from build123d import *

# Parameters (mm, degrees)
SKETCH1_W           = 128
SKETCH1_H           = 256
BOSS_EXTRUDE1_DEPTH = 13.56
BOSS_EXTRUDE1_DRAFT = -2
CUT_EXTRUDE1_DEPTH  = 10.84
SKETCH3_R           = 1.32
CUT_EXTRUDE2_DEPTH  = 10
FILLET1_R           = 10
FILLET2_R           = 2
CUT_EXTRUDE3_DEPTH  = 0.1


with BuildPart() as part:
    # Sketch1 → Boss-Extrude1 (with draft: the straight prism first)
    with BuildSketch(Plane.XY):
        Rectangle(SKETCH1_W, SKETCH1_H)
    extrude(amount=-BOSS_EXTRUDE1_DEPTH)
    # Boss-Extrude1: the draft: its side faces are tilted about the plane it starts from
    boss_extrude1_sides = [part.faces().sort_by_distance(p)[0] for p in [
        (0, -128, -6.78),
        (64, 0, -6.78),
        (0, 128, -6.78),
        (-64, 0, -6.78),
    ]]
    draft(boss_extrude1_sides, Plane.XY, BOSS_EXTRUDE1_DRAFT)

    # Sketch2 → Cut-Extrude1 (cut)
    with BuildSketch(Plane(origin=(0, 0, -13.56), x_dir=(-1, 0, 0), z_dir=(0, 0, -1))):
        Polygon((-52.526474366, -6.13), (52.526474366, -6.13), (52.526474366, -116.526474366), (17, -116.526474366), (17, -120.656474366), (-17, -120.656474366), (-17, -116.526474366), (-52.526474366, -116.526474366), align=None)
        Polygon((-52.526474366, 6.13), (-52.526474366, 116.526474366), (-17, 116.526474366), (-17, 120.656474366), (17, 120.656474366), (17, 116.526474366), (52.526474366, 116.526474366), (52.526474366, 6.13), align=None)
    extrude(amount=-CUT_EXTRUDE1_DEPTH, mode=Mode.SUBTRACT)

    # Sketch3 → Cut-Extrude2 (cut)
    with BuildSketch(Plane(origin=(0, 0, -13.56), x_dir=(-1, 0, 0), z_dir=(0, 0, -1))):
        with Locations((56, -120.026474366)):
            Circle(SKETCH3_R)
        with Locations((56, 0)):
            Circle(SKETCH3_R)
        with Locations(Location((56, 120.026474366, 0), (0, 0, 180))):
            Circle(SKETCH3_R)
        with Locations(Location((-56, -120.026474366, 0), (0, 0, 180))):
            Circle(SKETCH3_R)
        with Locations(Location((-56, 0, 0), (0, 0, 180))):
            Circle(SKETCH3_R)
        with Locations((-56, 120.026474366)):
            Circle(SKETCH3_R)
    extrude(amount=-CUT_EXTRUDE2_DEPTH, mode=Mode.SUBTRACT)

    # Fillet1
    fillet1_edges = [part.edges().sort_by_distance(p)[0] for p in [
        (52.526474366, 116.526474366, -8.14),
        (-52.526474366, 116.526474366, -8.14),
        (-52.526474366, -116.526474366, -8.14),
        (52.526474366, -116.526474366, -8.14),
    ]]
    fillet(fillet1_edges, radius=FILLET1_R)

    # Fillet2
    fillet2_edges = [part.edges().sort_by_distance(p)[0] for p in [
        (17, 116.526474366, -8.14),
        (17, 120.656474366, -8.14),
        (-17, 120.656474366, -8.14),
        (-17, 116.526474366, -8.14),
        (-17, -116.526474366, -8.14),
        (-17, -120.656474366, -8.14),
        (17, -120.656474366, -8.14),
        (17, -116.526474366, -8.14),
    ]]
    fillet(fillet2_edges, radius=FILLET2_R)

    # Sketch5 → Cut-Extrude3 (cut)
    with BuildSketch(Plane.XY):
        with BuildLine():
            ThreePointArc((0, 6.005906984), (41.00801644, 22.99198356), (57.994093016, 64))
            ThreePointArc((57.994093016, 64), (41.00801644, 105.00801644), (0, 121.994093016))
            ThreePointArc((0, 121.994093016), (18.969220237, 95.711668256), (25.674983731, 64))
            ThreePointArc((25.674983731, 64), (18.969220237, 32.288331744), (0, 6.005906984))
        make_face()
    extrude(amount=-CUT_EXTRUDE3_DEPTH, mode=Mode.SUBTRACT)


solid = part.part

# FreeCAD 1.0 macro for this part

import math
import FreeCAD as App
import Part
import Sketcher
from FreeCAD import Vector
Q = App.Units.Quantity


def edges_at(feature, points):
    """Names of the edges that pass closest to the given points."""
    edges = feature.Shape.Edges
    near = lambda p: min(range(len(edges)), key=lambda i: edges[i].distToShape(Part.Vertex(*p))[0])
    return sorted({f"Edge{near(p) + 1}" for p in points})


def faces_at(feature, points):
    """Names of the faces that lie closest to the given points."""
    faces = feature.Shape.Faces
    near = lambda p: min(range(len(faces)), key=lambda i: faces[i].distToShape(Part.Vertex(*p))[0])
    return sorted({f"Face{near(p) + 1}" for p in points})


def add_polygon(sketch, points):
    """Adds a closed chain of lines whose ends are joined by coincident constraints."""
    first, n = sketch.GeometryCount, len(points)
    for a, b in zip(points, points[1:] + points[:1]):
        sketch.addGeometry(Part.LineSegment(App.Vector(*a, 0), App.Vector(*b, 0)), False)
    for i in range(n):
        sketch.addConstraint(Sketcher.Constraint("Coincident", first + i, 2, first + (i + 1) % n, 1))

doc = App.newDocument("Part")
params = doc.addObject("Spreadsheet::Sheet", "Params")
for row, (alias, value) in enumerate([
    ("sketch1_width", "128 mm"),
    ("sketch1_height", "256 mm"),
    ("pad1_length", "13.56 mm"),
    ("draft_angle", "2 deg"),
    ("sketch2_width", "34 mm"),
    ("sketch2_height", "4.13 mm"),
    ("pocket1_length", "10.84 mm"),
    ("sketch3_diameter", "2.64 mm"),
    ("pocket2_length", "10 mm"),
    ("fillet_radius", "10 mm"),
    ("fillet2_radius", "2 mm"),
    ("pocket3_length", "0.1 mm"),
], start=1):
    params.set(f"A{row}", alias)
    params.set(f"B{row}", "=" + value)
    params.setAlias(f"B{row}", alias)

body = doc.addObject("PartDesign::Body", "Body")

sketch1 = body.newObject("Sketcher::SketchObject", "Sketch")
sketch1.AttachmentSupport = (doc.getObject("XY_Plane"), [""])
sketch1.MapMode = "FlatFace"
add_polygon(sketch1, [(-64, 128), (-64, -128), (64, -128), (64, 128)])
sketch1.addConstraint([
    Sketcher.Constraint("Vertical", 0),
    Sketcher.Constraint("Horizontal", 1),
    Sketcher.Constraint("Vertical", 2),
    Sketcher.Constraint("Horizontal", 3),
    Sketcher.Constraint("Symmetric", 0, 2, 2, 2, -1, 1),
    Sketcher.Constraint("DistanceX", 1, 1, 1, 2, Q("128 mm")),
    Sketcher.Constraint("DistanceY", 0, 2, 0, 1, Q("256 mm")),
])
sketch1.setExpression("Constraints[9]", "Params.sketch1_width")
sketch1.setExpression("Constraints[10]", "Params.sketch1_height")
pad1 = body.newObject("PartDesign::Pad", "Pad")
pad1.Profile = sketch1
pad1.setExpression("Length", "Params.pad1_length")
pad1.Reversed = True
doc.recompute()

draft = body.newObject("PartDesign::Draft", "Draft")
draft.Base = (pad1, faces_at(pad1, [
    (0, -128, -6.78),
    (64, 0, -6.78),
    (0, 128, -6.78),
    (-64, 0, -6.78),
]))
draft.NeutralPlane = (doc.getObject("XY_Plane"), [""])
draft.setExpression("Angle", "Params.draft_angle")
draft.Reversed = True

sketch2 = body.newObject("Sketcher::SketchObject", "Sketch001")
sketch2.AttachmentSupport = (doc.getObject("XY_Plane"), [""])
sketch2.MapMode = "FlatFace"
sketch2.AttachmentOffset = App.Placement(Vector(0, 0, -13.56), App.Rotation())
add_polygon(sketch2, [(-52.5, -6.1), (52.5, -6.1), (52.5, -116.5), (17, -116.5), (17, -120.7), (-17, -120.7), (-17, -116.5), (-52.5, -116.5)])
add_polygon(sketch2, [(52.5, 116.5), (52.5, 6.1), (-52.5, 6.1), (-52.5, 116.5), (-17, 116.5), (-17, 120.7), (17, 120.7), (17, 116.5)])
sketch2.addConstraint([
    Sketcher.Constraint("Horizontal", 0),
    Sketcher.Constraint("Vertical", 1),
    Sketcher.Constraint("Horizontal", 2),
    Sketcher.Constraint("Vertical", 3),
    Sketcher.Constraint("Horizontal", 4),
    Sketcher.Constraint("Vertical", 5),
    Sketcher.Constraint("Horizontal", 6),
    Sketcher.Constraint("Vertical", 7),
    Sketcher.Constraint("Vertical", 8),
    Sketcher.Constraint("Horizontal", 9),
    Sketcher.Constraint("Vertical", 10),
    Sketcher.Constraint("Horizontal", 11),
    Sketcher.Constraint("Vertical", 12),
    Sketcher.Constraint("Horizontal", 13),
    Sketcher.Constraint("Vertical", 14),
    Sketcher.Constraint("Horizontal", 15),
    Sketcher.Constraint("Symmetric", 7, 2, 8, 2, -1, 1),
    Sketcher.Constraint("Symmetric", 1, 2, 10, 2, -1, 1),
    Sketcher.Constraint("Symmetric", 3, 2, 12, 2, -1, 1),
    Sketcher.Constraint("Symmetric", 5, 2, 14, 2, -1, 1),
    Sketcher.Constraint("Symmetric", 2, 2, 5, 2, -2),
    Sketcher.Constraint("Vertical", 1, 2, 8, 2),
    Sketcher.Constraint("DistanceX", 4, 2, 4, 1, Q("34 mm")),
    Sketcher.Constraint("DistanceY", 3, 2, 3, 1, Q("4.13 mm")),
    Sketcher.Constraint("DistanceY", 0, 2, -1, 1, Q("6.13 mm")),
    Sketcher.Constraint("DistanceX", 0, 1, 0, 2, Q("105.052949 mm")),
    Sketcher.Constraint("DistanceY", 1, 2, 1, 1, Q("110.396474 mm")),
])
sketch2.setExpression("Constraints[38]", "Params.sketch2_width")
sketch2.setExpression("Constraints[39]", "Params.sketch2_height")
pocket1 = body.newObject("PartDesign::Pocket", "Pocket")
pocket1.Profile = sketch2
pocket1.setExpression("Length", "Params.pocket1_length")
pocket1.Reversed = True

sketch3 = body.newObject("Sketcher::SketchObject", "Sketch002")
sketch3.AttachmentSupport = (doc.getObject("XY_Plane"), [""])
sketch3.MapMode = "FlatFace"
sketch3.AttachmentOffset = App.Placement(Vector(0, 0, -13.56), App.Rotation())
sketch3.addGeometry([
    Part.Circle(Vector(-56, -120, 0), Vector(0, 0, 1), 1.3),
    Part.Circle(Vector(-56, 0, 0), Vector(0, 0, 1), 1.3),
    Part.Circle(Vector(-56, 120, 0), Vector(0, 0, 1), 1.3),
    Part.Circle(Vector(56, -120, 0), Vector(0, 0, 1), 1.3),
    Part.Circle(Vector(56, 0, 0), Vector(0, 0, 1), 1.3),
    Part.Circle(Vector(56, 120, 0), Vector(0, 0, 1), 1.3),
], False)
sketch3.addConstraint([
    Sketcher.Constraint("Equal", 0, 1),
    Sketcher.Constraint("Equal", 1, 2),
    Sketcher.Constraint("Equal", 2, 3),
    Sketcher.Constraint("Equal", 3, 4),
    Sketcher.Constraint("Equal", 4, 5),
    Sketcher.Constraint("Symmetric", 2, 3, 3, 3, -1, 1),
    Sketcher.Constraint("Symmetric", 1, 3, 4, 3, -1, 1),
    Sketcher.Constraint("Symmetric", 0, 3, 5, 3, -1, 1),
    Sketcher.Constraint("Symmetric", 0, 3, 3, 3, -2),
    Sketcher.Constraint("PointOnObject", 1, 3, -1),
    Sketcher.Constraint("Vertical", 0, 3, 1, 3),
    Sketcher.Constraint("Diameter", 0, Q("2.64 mm")),
    Sketcher.Constraint("DistanceX", 0, 3, -1, 1, Q("56 mm")),
    Sketcher.Constraint("DistanceY", 0, 3, 2, 3, Q("240.052949 mm")),
])
sketch3.setExpression("Constraints[11]", "Params.sketch3_diameter")
pocket2 = body.newObject("PartDesign::Pocket", "Pocket001")
pocket2.Profile = sketch3
pocket2.setExpression("Length", "Params.pocket2_length")
pocket2.Reversed = True
doc.recompute()

fillet = body.newObject("PartDesign::Fillet", "Fillet")
fillet.Base = (pocket2, edges_at(pocket2, [
    (52.526, 116.526, -8.14),
    (-52.526, 116.526, -8.14),
    (-52.526, -116.526, -8.14),
    (52.526, -116.526, -8.14),
]))
fillet.setExpression("Radius", "Params.fillet_radius")
doc.recompute()

fillet2 = body.newObject("PartDesign::Fillet", "Fillet001")
fillet2.Base = (fillet, edges_at(fillet, [
    (17, 116.526, -8.14),
    (17, 120.656, -8.14),
    (-17, 120.656, -8.14),
    (-17, 116.526, -8.14),
    (-17, -116.526, -8.14),
    (-17, -120.656, -8.14),
    (17, -120.656, -8.14),
    (17, -116.526, -8.14),
]))
fillet2.setExpression("Radius", "Params.fillet2_radius")

sketch4 = body.newObject("Sketcher::SketchObject", "Sketch003")
sketch4.AttachmentSupport = (doc.getObject("XY_Plane"), [""])
sketch4.MapMode = "FlatFace"
sketch4.addGeometry([
    Part.ArcOfCircle(Part.Circle(Vector(0, 64, 0), Vector(0, 0, 1), 58), math.radians(-90), math.radians(0)),
    Part.ArcOfCircle(Part.Circle(Vector(0, 64, 0), Vector(0, 0, 1), 58), math.radians(0), math.radians(90)),
    Part.ArcOfCircle(Part.Circle(Vector(-53, 64, 0), Vector(0, 0, 1), 78), math.radians(0), math.radians(48)),
    Part.ArcOfCircle(Part.Circle(Vector(-53, 64, 0), Vector(0, 0, 1), 78), math.radians(-48), math.radians(0)),
], False)
sketch4.addConstraint([
    Sketcher.Constraint("Tangent", 0, 2, 1, 1),
    Sketcher.Constraint("Coincident", 1, 2, 2, 2),
    Sketcher.Constraint("Tangent", 2, 1, 3, 2),
    Sketcher.Constraint("Coincident", 3, 1, 0, 1),
    Sketcher.Constraint("Equal", 0, 1),
    Sketcher.Constraint("Equal", 2, 3),
    Sketcher.Constraint("PointOnObject", 0, 3, -2),
    Sketcher.Constraint("PointOnObject", 1, 2, -2),
    Sketcher.Constraint("PointOnObject", 3, 1, -2),
    Sketcher.Constraint("Horizontal", 3, 3, 0, 2),
    Sketcher.Constraint("Horizontal", 0, 2, 2, 1),
    Sketcher.Constraint("DistanceY", -1, 1, 0, 3, Q("64 mm")),
    Sketcher.Constraint("Radius", 0, Q("57.994093 mm")),
    Sketcher.Constraint("Radius", 2, Q("78.335388 mm")),
])
pocket3 = body.newObject("PartDesign::Pocket", "Pocket002")
pocket3.Profile = sketch4
pocket3.setExpression("Length", "Params.pocket3_length")

doc.recompute()
